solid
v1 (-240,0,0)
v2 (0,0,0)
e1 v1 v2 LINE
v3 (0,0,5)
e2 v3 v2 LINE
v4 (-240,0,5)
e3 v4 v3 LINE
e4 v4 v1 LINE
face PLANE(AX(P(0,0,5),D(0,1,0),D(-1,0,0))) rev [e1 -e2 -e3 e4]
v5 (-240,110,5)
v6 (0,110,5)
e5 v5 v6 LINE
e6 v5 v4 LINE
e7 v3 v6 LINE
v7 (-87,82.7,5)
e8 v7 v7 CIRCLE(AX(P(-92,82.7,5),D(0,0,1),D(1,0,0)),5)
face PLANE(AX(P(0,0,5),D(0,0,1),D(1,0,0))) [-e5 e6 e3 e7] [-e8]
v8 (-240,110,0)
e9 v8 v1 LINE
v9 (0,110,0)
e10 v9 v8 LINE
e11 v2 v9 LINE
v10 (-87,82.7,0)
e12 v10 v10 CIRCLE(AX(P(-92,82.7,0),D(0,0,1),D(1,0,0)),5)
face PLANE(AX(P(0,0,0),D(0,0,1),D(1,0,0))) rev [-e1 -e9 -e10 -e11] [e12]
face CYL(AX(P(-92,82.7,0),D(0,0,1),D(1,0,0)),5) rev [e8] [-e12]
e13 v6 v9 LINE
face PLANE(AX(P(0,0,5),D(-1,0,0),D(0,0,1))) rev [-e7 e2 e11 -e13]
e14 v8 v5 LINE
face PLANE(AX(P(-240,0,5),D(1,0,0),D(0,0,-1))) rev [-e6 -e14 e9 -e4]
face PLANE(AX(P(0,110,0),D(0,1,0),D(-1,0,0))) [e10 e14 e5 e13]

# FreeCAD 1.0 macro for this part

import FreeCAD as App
import Part
import Sketcher


def add_polygon(sketch, points):
    """Adds a closed chain of lines whose ends are joined by coincident constraints."""
    first, n = sketch.GeometryCount, len(points)
    for a, b in zip(points, points[1:] + points[:1]):
        sketch.addGeometry(Part.LineSegment(App.Vector(*a, 0), App.Vector(*b, 0)), False)
    for i in range(n):
        sketch.addConstraint(Sketcher.Constraint("Coincident", first + i, 2, first + (i + 1) % n, 1))

doc = App.newDocument("Part")
body = doc.addObject("PartDesign::Body", "Body")

# Sketch on XY plane
sketch1 = body.newObject("Sketcher::SketchObject", "Sketch")
sketch1.AttachmentSupport = (doc.getObject("XY_Plane"), [""])
sketch1.MapMode = "FlatFace"
add_polygon(sketch1, [(-240, 50), (-240, 0), (0, 0), (0, 50)])  # lines 0-3
sketch1.addConstraint(Sketcher.Constraint("Vertical", 0))
sketch1.addConstraint(Sketcher.Constraint("Horizontal", 1))
sketch1.addConstraint(Sketcher.Constraint("Vertical", 2))
sketch1.addConstraint(Sketcher.Constraint("Horizontal", 3))
sketch1.addConstraint(Sketcher.Constraint("Coincident", 1, 2, -1, 1))
sketch1.addConstraint(Sketcher.Constraint("DistanceX", 1, 1, 1, 2, 240.0))
sketch1.addConstraint(Sketcher.Constraint("DistanceY", 0, 2, 0, 1, 50.0))
pad1 = body.newObject("PartDesign::Pad", "Pad")
pad1.Profile = sketch1
pad1.Length = 5

# Sketch on XZ plane
sketch2 = body.newObject("Sketcher::SketchObject", "Sketch001")
sketch2.AttachmentSupport = (doc.getObject("XZ_Plane"), [""])
sketch2.MapMode = "FlatFace"
sketch2.AttachmentOffset = App.Placement(App.Vector(0, 0, -50), App.Rotation())
add_polygon(sketch2, [(-240, 0), (-240, 5), (0, 5), (0, 0)])  # lines 0-3
sketch2.addConstraint(Sketcher.Constraint("Vertical", 0))
sketch2.addConstraint(Sketcher.Constraint("Horizontal", 1))
sketch2.addConstraint(Sketcher.Constraint("Vertical", 2))
sketch2.addConstraint(Sketcher.Constraint("Horizontal", 3))
sketch2.addConstraint(Sketcher.Constraint("Coincident", 2, 2, -1, 1))
sketch2.addConstraint(Sketcher.Constraint("DistanceX", 1, 1, 1, 2, 240.0))
sketch2.addConstraint(Sketcher.Constraint("DistanceY", 0, 1, 0, 2, 5.0))
pad2 = body.newObject("PartDesign::Pad", "Pad001")
pad2.Profile = sketch2
pad2.Length = 50
pad2.Reversed = True

# Sketch on XY plane
sketch3 = body.newObject("Sketcher::SketchObject", "Sketch002")
sketch3.AttachmentSupport = (doc.getObject("XY_Plane"), [""])
sketch3.MapMode = "FlatFace"
sketch3.AttachmentOffset = App.Placement(App.Vector(0, 0, 5), App.Rotation())
sketch3.addGeometry(Part.Circle(App.Vector(-92, 83, 0), App.Vector(0, 0, 1), 5), False)
sketch3.addConstraint(Sketcher.Constraint("Diameter", 0, 10.0))
sketch3.addConstraint(Sketcher.Constraint("DistanceX", 0, 3, -1, 1, 92.0))
sketch3.addConstraint(Sketcher.Constraint("DistanceY", -1, 1, 0, 3, 82.7))
pocket1 = body.newObject("PartDesign::Pocket", "Pocket")
pocket1.Profile = sketch3
pocket1.Length = 5

# Sketch on XZ plane
sketch4 = body.newObject("Sketcher::SketchObject", "Sketch003")
sketch4.AttachmentSupport = (doc.getObject("XZ_Plane"), [""])
sketch4.MapMode = "FlatFace"
sketch4.AttachmentOffset = App.Placement(App.Vector(0, 0, -100), App.Rotation())
add_polygon(sketch4, [(-240, 0), (-240, 5), (0, 5), (0, 0)])  # lines 0-3
sketch4.addConstraint(Sketcher.Constraint("Vertical", 0))
sketch4.addConstraint(Sketcher.Constraint("Horizontal", 1))
sketch4.addConstraint(Sketcher.Constraint("Vertical", 2))
sketch4.addConstraint(Sketcher.Constraint("Horizontal", 3))
sketch4.addConstraint(Sketcher.Constraint("Coincident", 2, 2, -1, 1))
sketch4.addConstraint(Sketcher.Constraint("DistanceX", 1, 1, 1, 2, 240.0))
sketch4.addConstraint(Sketcher.Constraint("DistanceY", 0, 1, 0, 2, 5.0))
pad3 = body.newObject("PartDesign::Pad", "Pad002")
pad3.Profile = sketch4
pad3.Length = 10
pad3.Reversed = True

doc.recompute()
